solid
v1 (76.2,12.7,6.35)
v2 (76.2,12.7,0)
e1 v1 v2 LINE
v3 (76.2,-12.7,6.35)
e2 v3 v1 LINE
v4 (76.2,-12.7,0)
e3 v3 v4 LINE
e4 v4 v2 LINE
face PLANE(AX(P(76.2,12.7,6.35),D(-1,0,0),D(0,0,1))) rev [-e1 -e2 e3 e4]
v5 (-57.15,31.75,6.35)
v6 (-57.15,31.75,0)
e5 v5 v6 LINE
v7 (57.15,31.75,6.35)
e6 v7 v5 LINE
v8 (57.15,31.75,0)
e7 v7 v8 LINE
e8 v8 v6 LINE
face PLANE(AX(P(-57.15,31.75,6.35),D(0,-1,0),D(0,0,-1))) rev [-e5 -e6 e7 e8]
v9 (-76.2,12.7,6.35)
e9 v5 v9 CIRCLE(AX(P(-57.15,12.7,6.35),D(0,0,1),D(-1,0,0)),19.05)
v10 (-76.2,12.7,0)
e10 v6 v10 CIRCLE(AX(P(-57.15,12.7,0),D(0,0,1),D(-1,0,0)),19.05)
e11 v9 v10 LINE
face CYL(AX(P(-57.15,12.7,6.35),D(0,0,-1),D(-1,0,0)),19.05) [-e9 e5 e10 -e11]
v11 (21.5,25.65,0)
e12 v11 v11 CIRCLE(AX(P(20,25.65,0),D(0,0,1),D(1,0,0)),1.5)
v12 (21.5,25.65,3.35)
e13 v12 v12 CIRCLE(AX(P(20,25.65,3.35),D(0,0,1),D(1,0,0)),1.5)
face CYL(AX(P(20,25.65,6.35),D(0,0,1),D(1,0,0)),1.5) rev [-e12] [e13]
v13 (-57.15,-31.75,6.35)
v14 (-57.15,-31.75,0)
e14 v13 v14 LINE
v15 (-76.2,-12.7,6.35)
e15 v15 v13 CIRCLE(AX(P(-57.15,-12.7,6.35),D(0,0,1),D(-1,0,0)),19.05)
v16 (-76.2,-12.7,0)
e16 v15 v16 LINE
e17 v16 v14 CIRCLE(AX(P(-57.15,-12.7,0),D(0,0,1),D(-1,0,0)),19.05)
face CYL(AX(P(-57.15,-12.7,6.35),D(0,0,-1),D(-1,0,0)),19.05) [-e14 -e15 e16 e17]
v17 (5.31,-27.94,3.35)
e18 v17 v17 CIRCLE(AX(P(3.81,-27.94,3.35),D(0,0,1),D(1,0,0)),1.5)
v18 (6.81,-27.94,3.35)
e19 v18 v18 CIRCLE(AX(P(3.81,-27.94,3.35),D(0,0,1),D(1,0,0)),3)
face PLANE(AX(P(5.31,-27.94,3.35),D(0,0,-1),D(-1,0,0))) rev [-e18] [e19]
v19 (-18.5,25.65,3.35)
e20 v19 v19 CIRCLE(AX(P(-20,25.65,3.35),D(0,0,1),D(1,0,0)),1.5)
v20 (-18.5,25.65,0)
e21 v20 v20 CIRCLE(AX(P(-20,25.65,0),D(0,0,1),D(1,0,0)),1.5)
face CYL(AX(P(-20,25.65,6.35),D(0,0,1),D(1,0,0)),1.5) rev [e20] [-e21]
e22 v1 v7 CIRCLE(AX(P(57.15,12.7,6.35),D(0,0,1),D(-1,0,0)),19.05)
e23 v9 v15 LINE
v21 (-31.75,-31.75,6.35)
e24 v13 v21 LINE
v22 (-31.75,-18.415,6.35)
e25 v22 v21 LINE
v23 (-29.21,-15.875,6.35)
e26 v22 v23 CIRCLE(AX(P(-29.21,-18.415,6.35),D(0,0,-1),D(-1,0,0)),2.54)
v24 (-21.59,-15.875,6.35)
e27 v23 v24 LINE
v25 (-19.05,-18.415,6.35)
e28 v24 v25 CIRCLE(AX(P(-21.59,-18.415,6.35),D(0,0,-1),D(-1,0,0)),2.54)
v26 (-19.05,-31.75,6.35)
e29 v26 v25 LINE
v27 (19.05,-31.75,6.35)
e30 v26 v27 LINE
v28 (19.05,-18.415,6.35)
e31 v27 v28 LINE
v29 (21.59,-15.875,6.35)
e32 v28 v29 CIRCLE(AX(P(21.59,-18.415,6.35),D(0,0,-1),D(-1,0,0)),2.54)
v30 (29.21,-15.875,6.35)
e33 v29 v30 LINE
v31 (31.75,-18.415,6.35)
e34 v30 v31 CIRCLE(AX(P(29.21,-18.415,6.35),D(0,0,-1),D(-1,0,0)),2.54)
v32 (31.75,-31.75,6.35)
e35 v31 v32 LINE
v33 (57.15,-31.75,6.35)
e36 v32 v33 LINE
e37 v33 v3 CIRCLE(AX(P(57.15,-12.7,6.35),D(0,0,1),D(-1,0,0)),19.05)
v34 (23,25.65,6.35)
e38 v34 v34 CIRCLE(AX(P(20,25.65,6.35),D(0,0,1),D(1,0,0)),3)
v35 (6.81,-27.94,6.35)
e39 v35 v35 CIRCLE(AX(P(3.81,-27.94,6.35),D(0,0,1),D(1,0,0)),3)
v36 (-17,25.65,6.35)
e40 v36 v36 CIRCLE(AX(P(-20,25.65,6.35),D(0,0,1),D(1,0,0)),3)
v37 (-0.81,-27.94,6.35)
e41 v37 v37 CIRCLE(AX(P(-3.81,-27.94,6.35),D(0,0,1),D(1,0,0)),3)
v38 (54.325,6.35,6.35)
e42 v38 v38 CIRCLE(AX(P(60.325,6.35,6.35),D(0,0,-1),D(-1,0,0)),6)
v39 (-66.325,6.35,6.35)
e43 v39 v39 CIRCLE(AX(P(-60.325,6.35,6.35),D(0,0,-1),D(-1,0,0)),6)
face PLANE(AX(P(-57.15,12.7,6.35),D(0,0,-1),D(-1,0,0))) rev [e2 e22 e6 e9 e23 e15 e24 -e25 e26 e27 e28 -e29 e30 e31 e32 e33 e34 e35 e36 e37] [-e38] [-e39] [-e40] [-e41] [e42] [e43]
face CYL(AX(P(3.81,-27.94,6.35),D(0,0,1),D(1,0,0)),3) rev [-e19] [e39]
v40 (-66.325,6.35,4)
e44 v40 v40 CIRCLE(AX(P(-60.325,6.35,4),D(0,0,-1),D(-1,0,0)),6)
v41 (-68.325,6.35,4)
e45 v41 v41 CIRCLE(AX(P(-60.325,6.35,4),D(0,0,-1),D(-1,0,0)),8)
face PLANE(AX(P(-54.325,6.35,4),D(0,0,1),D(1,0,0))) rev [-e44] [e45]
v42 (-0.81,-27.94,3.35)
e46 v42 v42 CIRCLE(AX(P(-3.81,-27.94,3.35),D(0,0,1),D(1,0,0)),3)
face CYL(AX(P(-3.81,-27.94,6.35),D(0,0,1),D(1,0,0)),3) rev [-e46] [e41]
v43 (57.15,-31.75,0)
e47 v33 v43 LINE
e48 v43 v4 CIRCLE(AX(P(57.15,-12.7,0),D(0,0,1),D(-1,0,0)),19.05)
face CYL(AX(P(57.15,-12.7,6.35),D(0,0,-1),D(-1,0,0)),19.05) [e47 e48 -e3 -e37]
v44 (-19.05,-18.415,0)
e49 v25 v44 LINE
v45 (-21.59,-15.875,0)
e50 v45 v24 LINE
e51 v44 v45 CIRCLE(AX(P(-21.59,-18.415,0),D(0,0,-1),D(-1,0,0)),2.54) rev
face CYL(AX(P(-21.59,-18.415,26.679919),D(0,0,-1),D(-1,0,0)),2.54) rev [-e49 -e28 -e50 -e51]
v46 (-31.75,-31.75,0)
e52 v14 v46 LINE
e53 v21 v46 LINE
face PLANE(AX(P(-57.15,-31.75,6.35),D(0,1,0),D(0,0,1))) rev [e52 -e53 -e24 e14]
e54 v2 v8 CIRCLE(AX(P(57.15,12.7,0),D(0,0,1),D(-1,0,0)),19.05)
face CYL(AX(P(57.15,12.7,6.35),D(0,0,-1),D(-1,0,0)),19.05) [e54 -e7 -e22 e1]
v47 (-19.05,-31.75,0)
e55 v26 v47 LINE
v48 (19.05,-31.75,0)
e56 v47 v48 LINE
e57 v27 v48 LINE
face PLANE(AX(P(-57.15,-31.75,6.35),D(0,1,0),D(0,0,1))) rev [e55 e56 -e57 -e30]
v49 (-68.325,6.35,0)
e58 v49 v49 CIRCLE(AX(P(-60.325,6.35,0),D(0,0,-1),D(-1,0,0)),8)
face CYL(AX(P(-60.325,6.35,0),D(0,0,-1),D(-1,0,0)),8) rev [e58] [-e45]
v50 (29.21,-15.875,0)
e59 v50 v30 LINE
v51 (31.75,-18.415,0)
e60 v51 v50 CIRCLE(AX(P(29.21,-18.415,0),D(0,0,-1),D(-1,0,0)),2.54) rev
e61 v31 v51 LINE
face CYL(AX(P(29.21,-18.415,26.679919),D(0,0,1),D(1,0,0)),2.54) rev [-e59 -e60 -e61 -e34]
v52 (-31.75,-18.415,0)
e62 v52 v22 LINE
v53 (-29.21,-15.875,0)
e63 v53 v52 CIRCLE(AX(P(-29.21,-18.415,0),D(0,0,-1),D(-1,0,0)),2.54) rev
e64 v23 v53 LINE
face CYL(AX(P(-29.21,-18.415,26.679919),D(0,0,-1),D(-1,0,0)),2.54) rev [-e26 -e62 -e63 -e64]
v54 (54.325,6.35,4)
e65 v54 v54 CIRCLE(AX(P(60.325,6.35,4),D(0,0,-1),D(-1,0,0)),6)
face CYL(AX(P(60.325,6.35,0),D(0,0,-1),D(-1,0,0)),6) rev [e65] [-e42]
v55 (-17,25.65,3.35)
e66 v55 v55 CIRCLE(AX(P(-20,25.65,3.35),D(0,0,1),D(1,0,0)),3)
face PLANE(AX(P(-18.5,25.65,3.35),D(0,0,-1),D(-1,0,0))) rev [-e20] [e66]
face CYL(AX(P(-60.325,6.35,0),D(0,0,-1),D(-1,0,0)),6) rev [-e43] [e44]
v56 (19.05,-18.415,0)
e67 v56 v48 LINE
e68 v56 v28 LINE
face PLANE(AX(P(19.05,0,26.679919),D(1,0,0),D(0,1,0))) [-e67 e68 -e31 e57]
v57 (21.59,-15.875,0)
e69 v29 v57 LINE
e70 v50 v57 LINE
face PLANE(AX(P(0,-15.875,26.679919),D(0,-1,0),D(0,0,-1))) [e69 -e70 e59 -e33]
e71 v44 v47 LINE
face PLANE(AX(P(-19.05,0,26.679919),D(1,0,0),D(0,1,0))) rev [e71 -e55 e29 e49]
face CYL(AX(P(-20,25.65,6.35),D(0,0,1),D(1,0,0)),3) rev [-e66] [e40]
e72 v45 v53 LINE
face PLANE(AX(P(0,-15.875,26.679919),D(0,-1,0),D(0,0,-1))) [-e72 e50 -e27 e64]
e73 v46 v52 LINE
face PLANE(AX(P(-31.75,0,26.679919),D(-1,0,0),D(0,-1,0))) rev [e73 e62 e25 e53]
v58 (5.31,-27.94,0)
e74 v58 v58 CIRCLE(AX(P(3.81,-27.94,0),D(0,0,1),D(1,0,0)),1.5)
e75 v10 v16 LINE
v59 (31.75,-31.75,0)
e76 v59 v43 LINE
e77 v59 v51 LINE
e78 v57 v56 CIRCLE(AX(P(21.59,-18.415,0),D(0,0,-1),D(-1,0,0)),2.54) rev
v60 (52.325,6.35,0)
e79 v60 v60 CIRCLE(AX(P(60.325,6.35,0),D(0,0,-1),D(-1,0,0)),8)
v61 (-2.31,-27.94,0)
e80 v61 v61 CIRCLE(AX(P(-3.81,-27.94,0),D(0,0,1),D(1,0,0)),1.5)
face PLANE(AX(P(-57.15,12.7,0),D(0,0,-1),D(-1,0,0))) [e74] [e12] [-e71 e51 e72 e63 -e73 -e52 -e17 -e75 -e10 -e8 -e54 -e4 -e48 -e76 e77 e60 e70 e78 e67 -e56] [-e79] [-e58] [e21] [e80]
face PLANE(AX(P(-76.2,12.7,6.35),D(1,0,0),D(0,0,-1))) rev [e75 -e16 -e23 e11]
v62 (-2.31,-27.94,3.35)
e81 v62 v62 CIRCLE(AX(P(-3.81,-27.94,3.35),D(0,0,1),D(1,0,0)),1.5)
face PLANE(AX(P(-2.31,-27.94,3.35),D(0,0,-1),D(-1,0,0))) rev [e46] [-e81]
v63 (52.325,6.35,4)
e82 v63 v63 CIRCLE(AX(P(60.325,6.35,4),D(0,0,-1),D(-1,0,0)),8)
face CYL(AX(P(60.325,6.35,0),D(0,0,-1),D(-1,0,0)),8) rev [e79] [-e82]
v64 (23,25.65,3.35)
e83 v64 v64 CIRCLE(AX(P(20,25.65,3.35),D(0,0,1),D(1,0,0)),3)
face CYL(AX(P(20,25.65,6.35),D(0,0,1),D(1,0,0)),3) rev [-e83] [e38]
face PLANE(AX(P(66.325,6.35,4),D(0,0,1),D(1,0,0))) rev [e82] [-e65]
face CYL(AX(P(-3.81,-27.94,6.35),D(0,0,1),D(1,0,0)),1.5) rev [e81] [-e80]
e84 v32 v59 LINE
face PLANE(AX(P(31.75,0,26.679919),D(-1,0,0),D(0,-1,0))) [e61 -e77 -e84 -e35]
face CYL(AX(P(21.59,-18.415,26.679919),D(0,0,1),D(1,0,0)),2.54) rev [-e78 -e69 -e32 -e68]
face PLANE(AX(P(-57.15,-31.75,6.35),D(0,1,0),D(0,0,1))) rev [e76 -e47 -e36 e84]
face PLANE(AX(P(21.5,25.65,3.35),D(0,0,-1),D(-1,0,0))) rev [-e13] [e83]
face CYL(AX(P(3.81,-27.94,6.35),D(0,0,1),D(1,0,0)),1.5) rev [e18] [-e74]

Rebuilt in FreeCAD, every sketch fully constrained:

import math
import FreeCAD as App
import Part
import Sketcher
Q = App.Units.Quantity


def edges_at(feature, points):
    """Names of the edges that pass closest to the given points."""
    edges = feature.Shape.Edges
    near = lambda p: min(range(len(edges)), key=lambda i: edges[i].distToShape(Part.Vertex(*p))[0])
    return sorted({f"Edge{near(p) + 1}" for p in points})

doc = App.newDocument("Part")
params = doc.addObject("Spreadsheet::Sheet", "Params")
for row, (alias, value) in enumerate([
    ("sketch1_height", "1 in"),
    ("sketch1_radius", "0.75 in"),
    ("sketch1_width", "4.5 in"),
    ("pad1_length", "0.25 in"),
    ("hole_diameter", "3 mm"),
    ("hole_cbore_diameter", "6 mm"),
    ("hole_cbore_depth", "3 mm"),
    ("sketch3_width", "0.5 in"),
    ("sketch3_height", "0.625 in"),
    ("pocket1_length", "0.25 in"),
    ("fillet_radius", "0.1 in"),
    ("hole2_diameter", "12 mm"),
    ("hole2_cbore_diameter", "16 mm"),
    ("hole2_cbore_depth", "4 mm"),
], start=1):
    params.set(f"A{row}", alias)
    params.set(f"B{row}", "=" + value)
    params.setAlias(f"B{row}", alias)

body = doc.addObject("PartDesign::Body", "Body")

sketch1 = doc.addObject("Sketcher::SketchObject", "Sketch")
body.addObject(sketch1)
sketch1.AttachmentSupport = (doc.XY_Plane, [""])
sketch1.MapMode = "FlatFace"
sketch1.addGeometry(Part.LineSegment(App.Vector(57, 32, 0), App.Vector(-57, 32, 0)), False)
sketch1.addGeometry(Part.ArcOfCircle(Part.Circle(App.Vector(-57, 13, 0), App.Vector(0, 0, 1), 19), math.radians(90), math.radians(180)), False)
sketch1.addGeometry(Part.LineSegment(App.Vector(-76, 13, 0), App.Vector(-76, -13, 0)), False)
sketch1.addGeometry(Part.ArcOfCircle(Part.Circle(App.Vector(-57, -13, 0), App.Vector(0, 0, 1), 19), math.radians(180), math.radians(270)), False)
sketch1.addGeometry(Part.LineSegment(App.Vector(-57, -32, 0), App.Vector(57, -32, 0)), False)
sketch1.addGeometry(Part.ArcOfCircle(Part.Circle(App.Vector(57, -13, 0), App.Vector(0, 0, 1), 19), math.radians(-90), math.radians(0)), False)
sketch1.addGeometry(Part.LineSegment(App.Vector(76, -13, 0), App.Vector(76, 13, 0)), False)
sketch1.addGeometry(Part.ArcOfCircle(Part.Circle(App.Vector(57, 13, 0), App.Vector(0, 0, 1), 19), math.radians(0), math.radians(90)), False)
sketch1.addConstraint(Sketcher.Constraint("Tangent", 0, 2, 1, 1))
sketch1.addConstraint(Sketcher.Constraint("Tangent", 1, 2, 2, 1))
sketch1.addConstraint(Sketcher.Constraint("Tangent", 2, 2, 3, 1))
sketch1.addConstraint(Sketcher.Constraint("Tangent", 3, 2, 4, 1))
sketch1.addConstraint(Sketcher.Constraint("Tangent", 4, 2, 5, 1))
sketch1.addConstraint(Sketcher.Constraint("Tangent", 5, 2, 6, 1))
sketch1.addConstraint(Sketcher.Constraint("Tangent", 6, 2, 7, 1))
sketch1.addConstraint(Sketcher.Constraint("Tangent", 7, 2, 0, 1))
sketch1.addConstraint(Sketcher.Constraint("Horizontal", 0))
sketch1.addConstraint(Sketcher.Constraint("Vertical", 2))
sketch1.addConstraint(Sketcher.Constraint("Horizontal", 4))
sketch1.addConstraint(Sketcher.Constraint("Vertical", 6))
sketch1.addConstraint(Sketcher.Constraint("Equal", 1, 3))
sketch1.addConstraint(Sketcher.Constraint("Equal", 3, 5))
sketch1.addConstraint(Sketcher.Constraint("Equal", 5, 7))
sketch1.addConstraint(Sketcher.Constraint("Symmetric", 1, 3, 5, 3, -1, 1))
sketch1.addConstraint(Sketcher.Constraint("DistanceY", 2, 2, 2, 1, Q("1 in")))
sketch1.addConstraint(Sketcher.Constraint("Radius", 1, Q("0.75 in")))
sketch1.addConstraint(Sketcher.Constraint("DistanceX", 0, 2, 0, 1, Q("4.5 in")))
sketch1.setExpression("Constraints[16]", "Params.sketch1_height")
sketch1.setExpression("Constraints[17]", "Params.sketch1_radius")
sketch1.setExpression("Constraints[18]", "Params.sketch1_width")
pad1 = doc.addObject("PartDesign::Pad", "Pad")
body.addObject(pad1)
pad1.Profile = sketch1
pad1.setExpression("Length", "Params.pad1_length")

sketch2 = doc.addObject("Sketcher::SketchObject", "Sketch001")
body.addObject(sketch2)
sketch2.AttachmentSupport = (doc.XY_Plane, [""])
sketch2.MapMode = "FlatFace"
sketch2.AttachmentOffset = App.Placement(App.Vector(0, 0, 0.25 * 25.4), App.Rotation())
sketch2.addGeometry(Part.Circle(App.Vector(-20, 25.6, 0), App.Vector(0, 0, 1), 1.5), False)
sketch2.addGeometry(Part.Circle(App.Vector(20, 25.6, 0), App.Vector(0, 0, 1), 1.5), False)
sketch2.addGeometry(Part.Circle(App.Vector(3.8, -27.9, 0), App.Vector(0, 0, 1), 1.5), False)
sketch2.addGeometry(Part.Circle(App.Vector(-3.8, -27.9, 0), App.Vector(0, 0, 1), 1.5), False)
sketch2.addConstraint(Sketcher.Constraint("Equal", 0, 1))
sketch2.addConstraint(Sketcher.Constraint("Equal", 1, 2))
sketch2.addConstraint(Sketcher.Constraint("Equal", 2, 3))
sketch2.addConstraint(Sketcher.Constraint("Symmetric", 0, 3, 1, 3, -2))
sketch2.addConstraint(Sketcher.Constraint("Symmetric", 2, 3, 3, 3, -2))
sketch2.addConstraint(Sketcher.Constraint("DistanceY", 2, 3, -1, 1, Q("1.1 in")))
sketch2.addConstraint(Sketcher.Constraint("DistanceX", 3, 3, 2, 3, Q("0.3 in")))
sketch2.addConstraint(Sketcher.Constraint("Diameter", 0, 3.0))
sketch2.addConstraint(Sketcher.Constraint("DistanceX", 0, 3, -1, 1, 20.0))
sketch2.addConstraint(Sketcher.Constraint("DistanceY", -1, 1, 0, 3, 25.65))
doc.recompute()
hole = doc.addObject("PartDesign::Hole", "Hole")
body.addObject(hole)
hole.Profile = sketch2
hole.ThreadType = "None"
hole.setExpression("Diameter", "Params.hole_diameter")
hole.DepthType = "ThroughAll"
hole.HoleCutType = "Counterbore"
hole.setExpression("HoleCutDiameter", "Params.hole_cbore_diameter")
hole.setExpression("HoleCutDepth", "Params.hole_cbore_depth")

sketch3 = doc.addObject("Sketcher::SketchObject", "Sketch002")
body.addObject(sketch3)
sketch3.AttachmentSupport = (doc.XY_Plane, [""])
sketch3.MapMode = "FlatFace"
sketch3.addGeometry(Part.LineSegment(App.Vector(32, -16, 0), App.Vector(32, -32, 0)), False)
sketch3.addGeometry(Part.LineSegment(App.Vector(32, -32, 0), App.Vector(19, -32, 0)), False)
sketch3.addGeometry(Part.LineSegment(App.Vector(19, -32, 0), App.Vector(19, -16, 0)), False)
sketch3.addGeometry(Part.LineSegment(App.Vector(19, -16, 0), App.Vector(32, -16, 0)), False)
sketch3.addGeometry(Part.LineSegment(App.Vector(-19, -16, 0), App.Vector(-19, -32, 0)), False)
sketch3.addGeometry(Part.LineSegment(App.Vector(-19, -32, 0), App.Vector(-32, -32, 0)), False)
sketch3.addGeometry(Part.LineSegment(App.Vector(-32, -32, 0), App.Vector(-32, -16, 0)), False)
sketch3.addGeometry(Part.LineSegment(App.Vector(-32, -16, 0), App.Vector(-19, -16, 0)), False)
sketch3.addConstraint(Sketcher.Constraint("Coincident", 0, 2, 1, 1))
sketch3.addConstraint(Sketcher.Constraint("Coincident", 1, 2, 2, 1))
sketch3.addConstraint(Sketcher.Constraint("Coincident", 2, 2, 3, 1))
sketch3.addConstraint(Sketcher.Constraint("Coincident", 3, 2, 0, 1))
sketch3.addConstraint(Sketcher.Constraint("Coincident", 4, 2, 5, 1))
sketch3.addConstraint(Sketcher.Constraint("Coincident", 5, 2, 6, 1))
sketch3.addConstraint(Sketcher.Constraint("Coincident", 6, 2, 7, 1))
sketch3.addConstraint(Sketcher.Constraint("Coincident", 7, 2, 4, 1))
sketch3.addConstraint(Sketcher.Constraint("Vertical", 0))
sketch3.addConstraint(Sketcher.Constraint("Horizontal", 1))
sketch3.addConstraint(Sketcher.Constraint("Vertical", 2))
sketch3.addConstraint(Sketcher.Constraint("Horizontal", 3))
sketch3.addConstraint(Sketcher.Constraint("Vertical", 4))
sketch3.addConstraint(Sketcher.Constraint("Horizontal", 5))
sketch3.addConstraint(Sketcher.Constraint("Vertical", 6))
sketch3.addConstraint(Sketcher.Constraint("Horizontal", 7))
sketch3.addConstraint(Sketcher.Constraint("Symmetric", 1, 2, 4, 2, -2))
sketch3.addConstraint(Sketcher.Constraint("Symmetric", 3, 2, 6, 2, -2))
sketch3.addConstraint(Sketcher.Constraint("DistanceX", 1, 2, 1, 1, Q("0.5 in")))
sketch3.addConstraint(Sketcher.Constraint("DistanceX", 4, 2, 0, 2, Q("2 in")))
sketch3.addConstraint(Sketcher.Constraint("DistanceY", 0, 2, 0, 1, Q("0.625 in")))
sketch3.addConstraint(Sketcher.Constraint("DistanceY", 0, 2, -1, 1, Q("1.25 in")))
sketch3.setExpression("Constraints[18]", "Params.sketch3_width")
sketch3.setExpression("Constraints[20]", "Params.sketch3_height")
pocket1 = doc.addObject("PartDesign::Pocket", "Pocket")
body.addObject(pocket1)
pocket1.Profile = sketch3
pocket1.setExpression("Length", "Params.pocket1_length")
pocket1.Reversed = True
doc.recompute()

fillet = doc.addObject("PartDesign::Fillet", "Fillet")
body.addObject(fillet)
fillet.Base = (pocket1, edges_at(pocket1, [
    (19.05, -15.875, 3.175),
    (31.75, -15.875, 3.175),
    (-19.05, -15.875, 3.175),
    (-31.75, -15.875, 3.175),
]))
fillet.setExpression("Radius", "Params.fillet_radius")

sketch4 = doc.addObject("Sketcher::SketchObject", "Sketch003")
body.addObject(sketch4)
sketch4.AttachmentSupport = (doc.XY_Plane, [""])
sketch4.MapMode = "FlatFace"
sketch4.addGeometry(Part.Circle(App.Vector(-60, 6, 0), App.Vector(0, 0, 1), 6), False)
sketch4.addGeometry(Part.Circle(App.Vector(60, 6, 0), App.Vector(0, 0, 1), 6), False)
sketch4.addConstraint(Sketcher.Constraint("Equal", 0, 1))
sketch4.addConstraint(Sketcher.Constraint("Symmetric", 0, 3, 1, 3, -2))
sketch4.addConstraint(Sketcher.Constraint("Diameter", 0, 12.0))
sketch4.addConstraint(Sketcher.Constraint("DistanceY", -1, 1, 0, 3, Q("0.25 in")))
sketch4.addConstraint(Sketcher.Constraint("DistanceX", 0, 3, 1, 3, Q("4.75 in")))
doc.recompute()
hole2 = doc.addObject("PartDesign::Hole", "Hole001")
body.addObject(hole2)
hole2.Profile = sketch4
hole2.ThreadType = "None"
hole2.setExpression("Diameter", "Params.hole2_diameter")
hole2.DepthType = "ThroughAll"
hole2.HoleCutType = "Counterbore"
hole2.setExpression("HoleCutDiameter", "Params.hole2_cbore_diameter")
hole2.setExpression("HoleCutDepth", "Params.hole2_cbore_depth")
hole2.Reversed = True

doc.recompute()
